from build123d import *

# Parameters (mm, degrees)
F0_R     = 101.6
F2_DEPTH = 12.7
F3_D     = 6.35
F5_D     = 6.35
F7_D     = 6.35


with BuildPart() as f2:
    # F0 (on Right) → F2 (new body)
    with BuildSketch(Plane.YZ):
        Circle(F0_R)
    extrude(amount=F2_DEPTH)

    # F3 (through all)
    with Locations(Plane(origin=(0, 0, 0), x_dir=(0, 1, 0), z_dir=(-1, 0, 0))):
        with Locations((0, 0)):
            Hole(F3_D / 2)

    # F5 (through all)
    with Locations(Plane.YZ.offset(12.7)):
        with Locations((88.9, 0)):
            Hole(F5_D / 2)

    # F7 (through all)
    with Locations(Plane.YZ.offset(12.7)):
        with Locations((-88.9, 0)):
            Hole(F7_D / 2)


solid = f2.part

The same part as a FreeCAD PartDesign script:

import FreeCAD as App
import Part
import Sketcher
Q = App.Units.Quantity

doc = App.newDocument("Part")
body = doc.addObject("PartDesign::Body", "Body")

# Sketch on YZ plane
sketch1 = doc.addObject("Sketcher::SketchObject", "Sketch")
body.addObject(sketch1)
sketch1.AttachmentSupport = (doc.YZ_Plane, [""])
sketch1.MapMode = "FlatFace"
sketch1.addGeometry(Part.Circle(App.Vector(0, 0, 0), App.Vector(0, 0, 1), 101.6), False)
sketch1.addConstraint([
    Sketcher.Constraint("Coincident", 0, 3, -1, 1),
    Sketcher.Constraint("Diameter", 0, Q("8 in")),
])
pad1 = doc.addObject("PartDesign::Pad", "Pad")
body.addObject(pad1)
pad1.Profile = sketch1
pad1.Length = Q("0.5 in")

# Sketch on YZ plane
sketch2 = doc.addObject("Sketcher::SketchObject", "Sketch001")
body.addObject(sketch2)
sketch2.AttachmentSupport = (doc.YZ_Plane, [""])
sketch2.MapMode = "FlatFace"
sketch2.addGeometry(Part.Circle(App.Vector(0, 0, 0), App.Vector(0, 0, 1), 3.175), False)
sketch2.addConstraint([
    Sketcher.Constraint("Coincident", 0, 3, -1, 1),
    Sketcher.Constraint("Diameter", 0, Q("0.25 in")),
])
doc.recompute()
hole = doc.addObject("PartDesign::Hole", "Hole")
body.addObject(hole)
hole.Profile = sketch2
hole.ThreadType = "None"
hole.Diameter = Q("0.25 in")
hole.DepthType = "ThroughAll"
hole.Reversed = True

# Sketch on YZ plane
sketch3 = doc.addObject("Sketcher::SketchObject", "Sketch002")
body.addObject(sketch3)
sketch3.AttachmentSupport = (doc.YZ_Plane, [""])
sketch3.MapMode = "FlatFace"
sketch3.AttachmentOffset = App.Placement(App.Vector(0, 0, 0.5 * 25.4), App.Rotation())
sketch3.addGeometry(Part.Circle(App.Vector(88.9, 0, 0), App.Vector(0, 0, 1), 3.175), False)
sketch3.addConstraint([
    Sketcher.Constraint("PointOnObject", 0, 3, -1),
    Sketcher.Constraint("Diameter", 0, Q("0.25 in")),
    Sketcher.Constraint("DistanceX", -1, 1, 0, 3, Q("3.5 in")),
])
doc.recompute()
hole2 = doc.addObject("PartDesign::Hole", "Hole001")
body.addObject(hole2)
hole2.Profile = sketch3
hole2.ThreadType = "None"
hole2.Diameter = Q("0.25 in")
hole2.DepthType = "ThroughAll"

# Sketch on YZ plane
sketch4 = doc.addObject("Sketcher::SketchObject", "Sketch003")
body.addObject(sketch4)
sketch4.AttachmentSupport = (doc.YZ_Plane, [""])
sketch4.MapMode = "FlatFace"
sketch4.AttachmentOffset = App.Placement(App.Vector(0, 0, 0.5 * 25.4), App.Rotation())
sketch4.addGeometry(Part.Circle(App.Vector(-88.9, 0, 0), App.Vector(0, 0, 1), 3.175), False)
sketch4.addConstraint([
    Sketcher.Constraint("PointOnObject", 0, 3, -1),
    Sketcher.Constraint("Diameter", 0, Q("0.25 in")),
    Sketcher.Constraint("DistanceX", 0, 3, -1, 1, Q("3.5 in")),
])
doc.recompute()
hole3 = doc.addObject("PartDesign::Hole", "Hole002")
body.addObject(hole3)
hole3.Profile = sketch4
hole3.ThreadType = "None"
hole3.Diameter = Q("0.25 in")
hole3.DepthType = "ThroughAll"

doc.recompute()
